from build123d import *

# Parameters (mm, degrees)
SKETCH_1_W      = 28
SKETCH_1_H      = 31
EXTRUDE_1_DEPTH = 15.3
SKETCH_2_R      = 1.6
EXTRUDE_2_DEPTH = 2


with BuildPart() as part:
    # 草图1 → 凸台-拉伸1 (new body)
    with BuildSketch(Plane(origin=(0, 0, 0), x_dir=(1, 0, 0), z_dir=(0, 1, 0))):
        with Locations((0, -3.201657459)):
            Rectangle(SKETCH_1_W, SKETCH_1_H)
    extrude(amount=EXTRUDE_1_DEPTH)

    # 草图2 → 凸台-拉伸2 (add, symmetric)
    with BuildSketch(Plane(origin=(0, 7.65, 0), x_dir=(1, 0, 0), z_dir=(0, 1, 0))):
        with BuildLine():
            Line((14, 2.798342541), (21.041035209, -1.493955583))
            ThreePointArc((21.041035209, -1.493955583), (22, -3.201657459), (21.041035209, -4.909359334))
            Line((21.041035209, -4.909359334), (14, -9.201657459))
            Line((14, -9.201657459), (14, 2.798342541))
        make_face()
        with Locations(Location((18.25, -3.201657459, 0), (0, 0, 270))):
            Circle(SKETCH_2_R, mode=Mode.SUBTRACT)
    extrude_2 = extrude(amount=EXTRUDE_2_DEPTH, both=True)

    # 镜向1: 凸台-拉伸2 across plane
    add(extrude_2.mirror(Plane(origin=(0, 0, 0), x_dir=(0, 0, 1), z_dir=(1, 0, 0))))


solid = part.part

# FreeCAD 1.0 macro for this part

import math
import FreeCAD as App
import Part
import Sketcher
from FreeCAD import Vector
Q = App.Units.Quantity

doc = App.newDocument("Part")
body = doc.addObject("PartDesign::Body", "Body")

# Sketch on XZ plane
sketch1 = doc.addObject("Sketcher::SketchObject", "Sketch")
body.addObject(sketch1)
sketch1.AttachmentSupport = (doc.XZ_Plane, [""])
sketch1.MapMode = "FlatFace"
sketch1.addGeometry(Part.LineSegment(Vector(-14, -12, 0), Vector(-14, 19, 0)), False)
sketch1.addGeometry(Part.LineSegment(Vector(-14, 19, 0), Vector(14, 19, 0)), False)
sketch1.addGeometry(Part.LineSegment(Vector(14, 19, 0), Vector(14, -12, 0)), False)
sketch1.addGeometry(Part.LineSegment(Vector(14, -12, 0), Vector(-14, -12, 0)), False)
sketch1.addConstraint(Sketcher.Constraint("Coincident", 0, 2, 1, 1))
sketch1.addConstraint(Sketcher.Constraint("Coincident", 1, 2, 2, 1))
sketch1.addConstraint(Sketcher.Constraint("Coincident", 2, 2, 3, 1))
sketch1.addConstraint(Sketcher.Constraint("Coincident", 3, 2, 0, 1))
sketch1.addConstraint(Sketcher.Constraint("Vertical", 0))
sketch1.addConstraint(Sketcher.Constraint("Horizontal", 1))
sketch1.addConstraint(Sketcher.Constraint("Vertical", 2))
sketch1.addConstraint(Sketcher.Constraint("Horizontal", 3))
sketch1.addConstraint(Sketcher.Constraint("DistanceX", 1, 1, 1, 2, Q("28 mm")))
sketch1.addConstraint(Sketcher.Constraint("DistanceY", 0, 1, 0, 2, Q("31 mm")))
sketch1.addConstraint(Sketcher.Constraint("DistanceX", 0, 2, -1, 1, Q("14 mm")))
sketch1.addConstraint(Sketcher.Constraint("DistanceY", -1, 1, 0, 2, Q("18.701657 mm")))
pad1 = doc.addObject("PartDesign::Pad", "Pad")
body.addObject(pad1)
pad1.Profile = sketch1
pad1.Length = 15.3
pad1.Reversed = True

# Sketch on XZ plane
sketch2 = doc.addObject("Sketcher::SketchObject", "Sketch001")
body.addObject(sketch2)
sketch2.AttachmentSupport = (doc.XZ_Plane, [""])
sketch2.MapMode = "FlatFace"
sketch2.AttachmentOffset = App.Placement(Vector(0, 0, -7.65), App.Rotation())
sketch2.addGeometry(Part.LineSegment(Vector(21, 1.5, 0), Vector(14, -2.8, 0)), False)
sketch2.addGeometry(Part.LineSegment(Vector(14, -2.8, 0), Vector(14, 9.2, 0)), False)
sketch2.addGeometry(Part.LineSegment(Vector(14, 9.2, 0), Vector(21, 4.9, 0)), False)
sketch2.addGeometry(Part.ArcOfCircle(Part.Circle(Vector(20, 3.2, 0), Vector(0, 0, 1), 2), math.radians(-59), math.radians(59)), False)
sketch2.addGeometry(Part.Circle(Vector(18.2, 3.2, 0), Vector(0, 0, 1), 1.6), False)
sketch2.addConstraint(Sketcher.Constraint("Coincident", 0, 2, 1, 1))
sketch2.addConstraint(Sketcher.Constraint("Coincident", 1, 2, 2, 1))
sketch2.addConstraint(Sketcher.Constraint("Tangent", 2, 2, 3, 2))
sketch2.addConstraint(Sketcher.Constraint("Tangent", 3, 1, 0, 1))
sketch2.addConstraint(Sketcher.Constraint("Vertical", 1))
sketch2.addConstraint(Sketcher.Constraint("Horizontal", 3, 3, 4, 3))
sketch2.addConstraint(Sketcher.Constraint("Vertical", 2, 2, 3, 1))
sketch2.addConstraint(Sketcher.Constraint("Radius", 3, Q("2 mm")))
sketch2.addConstraint(Sketcher.Constraint("Diameter", 4, Q("3.2 mm")))
sketch2.addConstraint(Sketcher.Constraint("DistanceY", 1, 1, 1, 2, Q("12 mm")))
sketch2.addConstraint(Sketcher.Constraint("DistanceX", -1, 1, 3, 3, Q("20 mm")))
sketch2.addConstraint(Sketcher.Constraint("DistanceX", -1, 1, 0, 2, Q("14 mm")))
sketch2.addConstraint(Sketcher.Constraint("DistanceX", -1, 1, 4, 3, Q("18.25 mm")))
sketch2.addConstraint(Sketcher.Constraint("DistanceY", -1, 1, 2, 2, Q("4.909359 mm")))
pad2 = doc.addObject("PartDesign::Pad", "Pad001")
body.addObject(pad2)
pad2.Profile = sketch2
pad2.Length = 4
pad2.Midplane = True
doc.recompute()

mirrored = doc.addObject("PartDesign::Mirrored", "Mirrored")
body.addObject(mirrored)
mirrored.Originals = [pad2]
mirrored.MirrorPlane = (doc.YZ_Plane, [""])
body.Tip = mirrored

doc.recompute()
